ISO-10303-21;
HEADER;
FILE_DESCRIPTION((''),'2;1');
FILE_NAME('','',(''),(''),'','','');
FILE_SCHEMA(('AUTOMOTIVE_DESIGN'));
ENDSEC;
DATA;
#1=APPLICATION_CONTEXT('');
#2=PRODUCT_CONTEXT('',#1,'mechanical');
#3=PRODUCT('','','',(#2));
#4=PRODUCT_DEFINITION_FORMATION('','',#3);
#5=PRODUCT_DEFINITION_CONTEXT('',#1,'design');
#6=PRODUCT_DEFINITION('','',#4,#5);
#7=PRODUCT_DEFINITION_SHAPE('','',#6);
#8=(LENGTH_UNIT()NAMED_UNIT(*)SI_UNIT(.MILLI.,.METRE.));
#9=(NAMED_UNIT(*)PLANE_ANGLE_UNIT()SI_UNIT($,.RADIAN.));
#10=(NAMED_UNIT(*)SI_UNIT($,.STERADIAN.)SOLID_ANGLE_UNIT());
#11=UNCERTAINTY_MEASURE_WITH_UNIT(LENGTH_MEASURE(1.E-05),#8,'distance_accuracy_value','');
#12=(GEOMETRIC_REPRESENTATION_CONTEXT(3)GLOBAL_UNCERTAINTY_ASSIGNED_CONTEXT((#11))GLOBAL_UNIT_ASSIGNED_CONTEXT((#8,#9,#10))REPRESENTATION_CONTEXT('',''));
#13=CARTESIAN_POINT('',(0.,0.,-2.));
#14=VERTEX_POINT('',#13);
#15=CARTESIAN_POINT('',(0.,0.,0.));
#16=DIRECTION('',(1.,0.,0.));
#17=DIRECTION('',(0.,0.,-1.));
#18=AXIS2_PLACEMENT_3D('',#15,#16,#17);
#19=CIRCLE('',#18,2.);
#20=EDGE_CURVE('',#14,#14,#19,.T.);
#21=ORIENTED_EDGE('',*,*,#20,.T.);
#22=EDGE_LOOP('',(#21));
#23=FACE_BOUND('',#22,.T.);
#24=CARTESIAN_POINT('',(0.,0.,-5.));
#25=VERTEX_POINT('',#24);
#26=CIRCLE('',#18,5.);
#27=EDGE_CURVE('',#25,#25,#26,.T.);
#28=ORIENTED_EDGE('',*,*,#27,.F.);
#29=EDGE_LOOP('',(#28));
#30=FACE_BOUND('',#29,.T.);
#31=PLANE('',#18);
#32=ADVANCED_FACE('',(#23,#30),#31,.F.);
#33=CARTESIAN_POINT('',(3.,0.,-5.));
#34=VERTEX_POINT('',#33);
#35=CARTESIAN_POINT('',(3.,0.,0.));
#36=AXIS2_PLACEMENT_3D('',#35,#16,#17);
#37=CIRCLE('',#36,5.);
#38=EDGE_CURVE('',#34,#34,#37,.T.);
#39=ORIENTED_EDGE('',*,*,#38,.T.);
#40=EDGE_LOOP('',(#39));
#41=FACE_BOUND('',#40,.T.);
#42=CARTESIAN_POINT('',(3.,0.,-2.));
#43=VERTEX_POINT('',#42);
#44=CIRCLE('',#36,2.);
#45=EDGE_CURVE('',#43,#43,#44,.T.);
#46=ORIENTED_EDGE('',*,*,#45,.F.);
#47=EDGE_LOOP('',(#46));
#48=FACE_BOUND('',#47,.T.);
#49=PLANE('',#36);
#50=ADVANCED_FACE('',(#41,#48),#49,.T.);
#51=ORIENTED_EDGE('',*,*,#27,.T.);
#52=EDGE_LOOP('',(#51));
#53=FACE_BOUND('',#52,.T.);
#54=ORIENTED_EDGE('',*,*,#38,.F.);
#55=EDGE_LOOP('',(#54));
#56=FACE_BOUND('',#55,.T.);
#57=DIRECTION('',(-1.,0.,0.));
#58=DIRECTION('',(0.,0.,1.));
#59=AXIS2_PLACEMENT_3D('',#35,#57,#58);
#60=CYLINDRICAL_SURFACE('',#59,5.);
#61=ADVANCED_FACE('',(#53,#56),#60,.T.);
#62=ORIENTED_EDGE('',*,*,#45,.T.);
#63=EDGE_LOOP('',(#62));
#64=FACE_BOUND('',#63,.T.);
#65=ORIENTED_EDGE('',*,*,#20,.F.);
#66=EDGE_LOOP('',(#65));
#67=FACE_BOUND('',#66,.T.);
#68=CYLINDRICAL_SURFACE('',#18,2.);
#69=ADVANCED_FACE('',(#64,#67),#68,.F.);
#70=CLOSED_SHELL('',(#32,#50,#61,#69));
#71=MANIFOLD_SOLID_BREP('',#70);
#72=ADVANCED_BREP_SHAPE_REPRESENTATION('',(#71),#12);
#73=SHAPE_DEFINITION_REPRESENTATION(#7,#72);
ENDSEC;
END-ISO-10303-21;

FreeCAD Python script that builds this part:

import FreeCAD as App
import Part
import Sketcher

V = App.Vector
Q = App.Units.Quantity

doc = App.newDocument("Part")
body = doc.addObject("PartDesign::Body", "Body")

# Sketch on YZ plane
sketch1 = body.newObject("Sketcher::SketchObject", "Sketch")
sketch1.AttachmentSupport = (doc.getObject("YZ_Plane"), [""])
sketch1.MapMode = "FlatFace"
sketch1.addGeometry(Part.Circle(V(0, 0, 0), V(0, 0, 1), 5), False)
sketch1.addConstraint(Sketcher.Constraint("Coincident", 0, 3, -1, 1))
sketch1.addConstraint(Sketcher.Constraint("Diameter", 0, Q("10 mm")))
pad1 = body.newObject("PartDesign::Pad", "Pad")
pad1.Profile = sketch1
pad1.Length = 3

# Sketch on YZ plane
sketch2 = body.newObject("Sketcher::SketchObject", "Sketch001")
sketch2.AttachmentSupport = (doc.getObject("YZ_Plane"), [""])
sketch2.MapMode = "FlatFace"
sketch2.AttachmentOffset = App.Placement(V(0, 0, 3), App.Rotation())
sketch2.addGeometry(Part.Circle(V(0, 0, 0), V(0, 0, 1), 2), False)
sketch2.addConstraint(Sketcher.Constraint("Coincident", 0, 3, -1, 1))
sketch2.addConstraint(Sketcher.Constraint("Diameter", 0, Q("4 mm")))
pocket1 = body.newObject("PartDesign::Pocket", "Pocket")
pocket1.Profile = sketch2
pocket1.Type = "ThroughAll"

doc.recompute()
